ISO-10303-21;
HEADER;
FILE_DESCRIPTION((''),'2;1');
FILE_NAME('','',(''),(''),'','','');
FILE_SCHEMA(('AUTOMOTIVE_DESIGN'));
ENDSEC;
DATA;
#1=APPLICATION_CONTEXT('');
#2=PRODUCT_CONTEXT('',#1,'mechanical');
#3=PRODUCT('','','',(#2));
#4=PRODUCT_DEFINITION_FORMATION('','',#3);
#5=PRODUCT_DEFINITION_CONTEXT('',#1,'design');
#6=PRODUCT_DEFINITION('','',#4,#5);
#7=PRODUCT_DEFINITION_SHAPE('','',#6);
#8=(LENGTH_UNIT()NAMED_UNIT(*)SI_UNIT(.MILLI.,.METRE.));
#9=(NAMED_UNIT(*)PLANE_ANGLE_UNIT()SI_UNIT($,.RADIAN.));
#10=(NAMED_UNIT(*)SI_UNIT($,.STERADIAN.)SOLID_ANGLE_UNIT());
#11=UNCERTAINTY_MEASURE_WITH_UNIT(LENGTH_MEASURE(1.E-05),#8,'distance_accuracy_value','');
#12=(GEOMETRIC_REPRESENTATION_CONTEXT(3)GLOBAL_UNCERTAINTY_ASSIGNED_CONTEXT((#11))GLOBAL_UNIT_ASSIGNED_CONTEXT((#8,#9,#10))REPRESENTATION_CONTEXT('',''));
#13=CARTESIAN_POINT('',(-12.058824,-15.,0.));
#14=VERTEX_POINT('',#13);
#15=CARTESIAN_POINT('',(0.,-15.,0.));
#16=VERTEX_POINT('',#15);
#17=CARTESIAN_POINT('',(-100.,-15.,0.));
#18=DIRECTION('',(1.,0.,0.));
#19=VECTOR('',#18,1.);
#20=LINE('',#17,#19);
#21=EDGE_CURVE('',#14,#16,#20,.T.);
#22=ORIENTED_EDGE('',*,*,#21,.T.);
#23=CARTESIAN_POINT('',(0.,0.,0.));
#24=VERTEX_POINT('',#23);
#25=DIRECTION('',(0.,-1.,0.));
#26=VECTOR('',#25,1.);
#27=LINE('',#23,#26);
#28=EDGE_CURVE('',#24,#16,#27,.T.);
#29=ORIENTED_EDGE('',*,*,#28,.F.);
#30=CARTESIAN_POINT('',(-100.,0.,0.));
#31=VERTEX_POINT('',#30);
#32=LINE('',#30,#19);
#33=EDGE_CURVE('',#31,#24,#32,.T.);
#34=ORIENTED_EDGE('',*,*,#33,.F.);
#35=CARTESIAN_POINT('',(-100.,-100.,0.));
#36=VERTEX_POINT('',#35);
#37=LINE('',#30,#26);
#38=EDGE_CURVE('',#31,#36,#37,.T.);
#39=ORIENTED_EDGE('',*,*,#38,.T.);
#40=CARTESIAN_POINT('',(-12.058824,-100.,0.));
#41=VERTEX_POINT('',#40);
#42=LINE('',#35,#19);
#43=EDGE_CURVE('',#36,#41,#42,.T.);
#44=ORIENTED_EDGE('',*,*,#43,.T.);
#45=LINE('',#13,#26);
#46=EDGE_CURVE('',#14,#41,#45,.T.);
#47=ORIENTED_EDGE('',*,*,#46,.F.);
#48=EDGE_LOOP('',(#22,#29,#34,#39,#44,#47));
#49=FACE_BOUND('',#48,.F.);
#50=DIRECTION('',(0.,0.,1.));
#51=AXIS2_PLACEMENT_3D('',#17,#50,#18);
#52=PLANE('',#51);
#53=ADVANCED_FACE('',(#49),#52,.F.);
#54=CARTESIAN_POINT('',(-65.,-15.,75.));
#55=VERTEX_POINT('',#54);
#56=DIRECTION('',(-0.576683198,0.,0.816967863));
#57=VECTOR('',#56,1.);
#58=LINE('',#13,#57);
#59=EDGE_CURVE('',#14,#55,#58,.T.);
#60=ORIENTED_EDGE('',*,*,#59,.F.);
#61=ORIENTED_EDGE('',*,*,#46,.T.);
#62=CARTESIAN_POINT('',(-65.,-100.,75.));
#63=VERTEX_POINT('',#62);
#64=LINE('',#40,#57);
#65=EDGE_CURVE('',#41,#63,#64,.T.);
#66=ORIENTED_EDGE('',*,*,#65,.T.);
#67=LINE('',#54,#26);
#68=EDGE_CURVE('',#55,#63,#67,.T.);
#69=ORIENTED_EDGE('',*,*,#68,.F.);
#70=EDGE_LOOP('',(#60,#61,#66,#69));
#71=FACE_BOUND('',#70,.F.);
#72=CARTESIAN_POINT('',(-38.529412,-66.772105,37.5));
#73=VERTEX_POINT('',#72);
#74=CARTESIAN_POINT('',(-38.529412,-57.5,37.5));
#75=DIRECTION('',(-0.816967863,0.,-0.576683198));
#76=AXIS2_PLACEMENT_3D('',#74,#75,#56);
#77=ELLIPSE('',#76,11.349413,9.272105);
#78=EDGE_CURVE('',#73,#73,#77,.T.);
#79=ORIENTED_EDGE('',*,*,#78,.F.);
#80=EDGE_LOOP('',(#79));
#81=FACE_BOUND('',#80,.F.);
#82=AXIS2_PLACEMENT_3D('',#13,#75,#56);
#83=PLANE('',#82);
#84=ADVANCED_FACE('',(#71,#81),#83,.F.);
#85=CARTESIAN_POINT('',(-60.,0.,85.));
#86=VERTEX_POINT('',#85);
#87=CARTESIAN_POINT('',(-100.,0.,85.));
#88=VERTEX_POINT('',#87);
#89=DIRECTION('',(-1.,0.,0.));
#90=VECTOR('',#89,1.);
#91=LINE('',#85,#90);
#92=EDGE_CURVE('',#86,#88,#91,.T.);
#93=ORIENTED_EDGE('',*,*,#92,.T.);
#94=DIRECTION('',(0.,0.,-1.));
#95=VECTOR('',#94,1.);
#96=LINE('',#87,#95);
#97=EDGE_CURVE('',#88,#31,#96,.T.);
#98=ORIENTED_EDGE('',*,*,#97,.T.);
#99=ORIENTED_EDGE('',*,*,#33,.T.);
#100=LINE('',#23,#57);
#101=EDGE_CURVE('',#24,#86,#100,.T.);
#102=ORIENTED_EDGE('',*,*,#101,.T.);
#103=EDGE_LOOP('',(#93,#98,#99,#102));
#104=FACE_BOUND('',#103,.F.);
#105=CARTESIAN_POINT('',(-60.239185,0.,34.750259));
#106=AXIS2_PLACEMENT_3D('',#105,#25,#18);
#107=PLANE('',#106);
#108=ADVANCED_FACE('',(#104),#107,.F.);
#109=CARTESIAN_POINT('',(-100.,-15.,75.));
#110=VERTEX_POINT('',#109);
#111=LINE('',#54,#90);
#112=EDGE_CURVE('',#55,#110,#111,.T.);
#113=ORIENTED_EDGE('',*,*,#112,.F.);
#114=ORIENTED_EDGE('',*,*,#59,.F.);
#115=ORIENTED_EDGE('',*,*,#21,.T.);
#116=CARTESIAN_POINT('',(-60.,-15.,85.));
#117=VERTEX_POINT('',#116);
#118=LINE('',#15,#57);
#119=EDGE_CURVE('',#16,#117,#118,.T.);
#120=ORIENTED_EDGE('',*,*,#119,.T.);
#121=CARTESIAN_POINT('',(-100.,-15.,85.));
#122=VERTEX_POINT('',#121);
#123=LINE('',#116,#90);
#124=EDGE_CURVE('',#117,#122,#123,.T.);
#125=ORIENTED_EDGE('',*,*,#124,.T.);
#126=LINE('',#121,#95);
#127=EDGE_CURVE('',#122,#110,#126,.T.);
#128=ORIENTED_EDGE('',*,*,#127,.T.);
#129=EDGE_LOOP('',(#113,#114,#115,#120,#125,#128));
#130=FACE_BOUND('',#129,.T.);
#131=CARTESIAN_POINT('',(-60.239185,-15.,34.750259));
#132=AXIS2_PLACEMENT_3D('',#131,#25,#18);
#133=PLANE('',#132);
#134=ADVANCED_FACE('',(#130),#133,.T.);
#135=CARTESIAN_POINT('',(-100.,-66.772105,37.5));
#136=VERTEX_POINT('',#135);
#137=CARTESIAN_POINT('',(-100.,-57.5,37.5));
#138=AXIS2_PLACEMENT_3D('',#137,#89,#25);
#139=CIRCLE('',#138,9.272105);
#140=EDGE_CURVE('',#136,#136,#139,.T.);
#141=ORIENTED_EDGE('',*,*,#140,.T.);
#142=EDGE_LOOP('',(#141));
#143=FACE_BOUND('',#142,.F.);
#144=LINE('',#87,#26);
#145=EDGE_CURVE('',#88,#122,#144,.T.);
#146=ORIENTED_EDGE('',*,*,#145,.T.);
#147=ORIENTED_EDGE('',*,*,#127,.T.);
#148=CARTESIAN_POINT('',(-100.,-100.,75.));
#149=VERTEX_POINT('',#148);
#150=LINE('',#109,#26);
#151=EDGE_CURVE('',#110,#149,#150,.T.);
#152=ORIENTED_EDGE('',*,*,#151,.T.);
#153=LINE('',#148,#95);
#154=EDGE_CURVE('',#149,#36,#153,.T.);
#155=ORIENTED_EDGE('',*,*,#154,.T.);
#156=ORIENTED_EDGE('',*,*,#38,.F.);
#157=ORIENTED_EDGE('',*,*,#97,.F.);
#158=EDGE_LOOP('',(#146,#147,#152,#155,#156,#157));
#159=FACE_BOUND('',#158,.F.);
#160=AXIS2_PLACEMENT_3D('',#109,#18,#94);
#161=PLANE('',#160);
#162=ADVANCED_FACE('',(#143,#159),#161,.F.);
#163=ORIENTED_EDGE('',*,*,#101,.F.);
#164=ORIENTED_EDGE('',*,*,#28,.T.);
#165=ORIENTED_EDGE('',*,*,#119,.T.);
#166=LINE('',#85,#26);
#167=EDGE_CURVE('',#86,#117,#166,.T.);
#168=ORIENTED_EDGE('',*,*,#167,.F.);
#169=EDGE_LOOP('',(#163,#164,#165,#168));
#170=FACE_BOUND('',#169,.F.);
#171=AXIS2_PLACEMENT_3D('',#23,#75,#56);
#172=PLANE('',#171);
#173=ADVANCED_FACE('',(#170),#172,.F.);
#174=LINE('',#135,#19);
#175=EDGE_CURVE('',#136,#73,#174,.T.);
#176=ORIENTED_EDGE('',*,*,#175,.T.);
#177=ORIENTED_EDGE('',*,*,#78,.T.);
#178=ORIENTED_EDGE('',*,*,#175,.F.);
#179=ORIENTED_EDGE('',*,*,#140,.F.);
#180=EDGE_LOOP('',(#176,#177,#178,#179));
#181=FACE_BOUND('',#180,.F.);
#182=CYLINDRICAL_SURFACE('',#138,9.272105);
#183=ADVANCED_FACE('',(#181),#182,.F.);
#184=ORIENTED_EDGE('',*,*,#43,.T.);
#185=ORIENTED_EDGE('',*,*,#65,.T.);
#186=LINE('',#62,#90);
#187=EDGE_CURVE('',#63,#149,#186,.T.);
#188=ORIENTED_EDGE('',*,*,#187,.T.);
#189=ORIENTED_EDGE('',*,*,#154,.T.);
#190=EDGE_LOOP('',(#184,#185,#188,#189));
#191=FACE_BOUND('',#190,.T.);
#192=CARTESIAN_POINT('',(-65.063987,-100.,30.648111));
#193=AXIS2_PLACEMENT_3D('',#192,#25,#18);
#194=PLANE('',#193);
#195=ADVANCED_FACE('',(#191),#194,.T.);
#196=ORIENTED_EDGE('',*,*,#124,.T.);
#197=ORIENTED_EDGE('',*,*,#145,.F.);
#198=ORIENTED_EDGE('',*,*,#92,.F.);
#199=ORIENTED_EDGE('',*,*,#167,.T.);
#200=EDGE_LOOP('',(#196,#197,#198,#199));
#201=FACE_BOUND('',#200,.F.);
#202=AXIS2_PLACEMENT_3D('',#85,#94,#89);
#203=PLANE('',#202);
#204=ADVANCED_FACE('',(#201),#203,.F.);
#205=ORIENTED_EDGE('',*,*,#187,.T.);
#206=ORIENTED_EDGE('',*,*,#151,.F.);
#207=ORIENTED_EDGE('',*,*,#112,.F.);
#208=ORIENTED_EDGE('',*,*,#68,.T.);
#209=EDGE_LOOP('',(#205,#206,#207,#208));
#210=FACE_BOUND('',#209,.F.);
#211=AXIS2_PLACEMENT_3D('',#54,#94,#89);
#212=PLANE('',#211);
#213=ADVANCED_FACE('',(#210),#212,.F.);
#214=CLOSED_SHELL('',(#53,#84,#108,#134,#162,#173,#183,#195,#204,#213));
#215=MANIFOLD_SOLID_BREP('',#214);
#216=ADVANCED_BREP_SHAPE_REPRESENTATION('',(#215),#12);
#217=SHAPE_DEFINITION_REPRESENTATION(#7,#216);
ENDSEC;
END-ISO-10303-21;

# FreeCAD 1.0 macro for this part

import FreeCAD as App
import Part
import Sketcher
from FreeCAD import Vector

doc = App.newDocument("Part")
body = doc.addObject("PartDesign::Body", "Body")

sketch1 = doc.addObject("Sketcher::SketchObject", "Sketch")
body.addObject(sketch1)
sketch1.AttachmentSupport = (doc.XZ_Plane, [""])
sketch1.MapMode = "FlatFace"
sketch1.addGeometry(Part.LineSegment(Vector(-100, 0, 0), Vector(0, 0, 0)), False)
sketch1.addGeometry(Part.LineSegment(Vector(0, 0, 0), Vector(-60, 85, 0)), False)
sketch1.addGeometry(Part.LineSegment(Vector(-60, 85, 0), Vector(-100, 85, 0)), False)
sketch1.addGeometry(Part.LineSegment(Vector(-100, 85, 0), Vector(-100, 0, 0)), False)
sketch1.addConstraint(Sketcher.Constraint("Coincident", 0, 2, 1, 1))
sketch1.addConstraint(Sketcher.Constraint("Coincident", 1, 2, 2, 1))
sketch1.addConstraint(Sketcher.Constraint("Coincident", 2, 2, 3, 1))
sketch1.addConstraint(Sketcher.Constraint("Coincident", 3, 2, 0, 1))
sketch1.addConstraint(Sketcher.Constraint("Horizontal", 0))
sketch1.addConstraint(Sketcher.Constraint("Horizontal", 2))
sketch1.addConstraint(Sketcher.Constraint("Vertical", 3))
sketch1.addConstraint(Sketcher.Constraint("Coincident", 0, 2, -1, 1))
sketch1.addConstraint(Sketcher.Constraint("DistanceX", 0, 1, 0, 2, 100.0))
sketch1.addConstraint(Sketcher.Constraint("DistanceX", 2, 2, 2, 1, 40.0))
sketch1.addConstraint(Sketcher.Constraint("DistanceY", 3, 2, 3, 1, 85.0))
pad1 = doc.addObject("PartDesign::Pad", "Pad")
body.addObject(pad1)
pad1.Profile = sketch1
pad1.Length = 15

sketch2 = doc.addObject("Sketcher::SketchObject", "Sketch001")
body.addObject(sketch2)
sketch2.AttachmentSupport = (doc.XZ_Plane, [""])
sketch2.MapMode = "FlatFace"
sketch2.AttachmentOffset = App.Placement(Vector(0, 0, 15), App.Rotation())
sketch2.addGeometry(Part.LineSegment(Vector(-65, 75, 0), Vector(-100, 75, 0)), False)
sketch2.addGeometry(Part.LineSegment(Vector(-100, 75, 0), Vector(-100, 0, 0)), False)
sketch2.addGeometry(Part.LineSegment(Vector(-100, 0, 0), Vector(-12, 0, 0)), False)
sketch2.addGeometry(Part.LineSegment(Vector(-12, 0, 0), Vector(-65, 75, 0)), False)
sketch2.addConstraint(Sketcher.Constraint("Coincident", 0, 2, 1, 1))
sketch2.addConstraint(Sketcher.Constraint("Coincident", 1, 2, 2, 1))
sketch2.addConstraint(Sketcher.Constraint("Coincident", 2, 2, 3, 1))
sketch2.addConstraint(Sketcher.Constraint("Coincident", 3, 2, 0, 1))
sketch2.addConstraint(Sketcher.Constraint("Horizontal", 0))
sketch2.addConstraint(Sketcher.Constraint("Vertical", 1))
sketch2.addConstraint(Sketcher.Constraint("Horizontal", 2))
sketch2.addConstraint(Sketcher.Constraint("PointOnObject", 1, 2, -1))
sketch2.addConstraint(Sketcher.Constraint("DistanceX", 0, 2, 0, 1, 35.0))
sketch2.addConstraint(Sketcher.Constraint("DistanceY", 1, 2, 1, 1, 75.0))
sketch2.addConstraint(Sketcher.Constraint("DistanceX", 0, 2, -1, 1, 100.0))
sketch2.addConstraint(Sketcher.Constraint("DistanceX", 2, 1, 2, 2, 87.941176))
pad2 = doc.addObject("PartDesign::Pad", "Pad001")
body.addObject(pad2)
pad2.Profile = sketch2
pad2.Length = 85

sketch3 = doc.addObject("Sketcher::SketchObject", "Sketch002")
body.addObject(sketch3)
sketch3.AttachmentSupport = (doc.YZ_Plane, [""])
sketch3.MapMode = "FlatFace"
sketch3.AttachmentOffset = App.Placement(Vector(0, 0, -100), App.Rotation())
sketch3.addGeometry(Part.Circle(Vector(-58, 38, 0), Vector(0, 0, 1), 9), False)
sketch3.addConstraint(Sketcher.Constraint("DistanceX", 0, 3, -1, 1, 57.5))
sketch3.addConstraint(Sketcher.Constraint("DistanceY", -1, 1, 0, 3, 37.5))
sketch3.addConstraint(Sketcher.Constraint("Diameter", 0, 18.544211))
pocket1 = doc.addObject("PartDesign::Pocket", "Pocket")
body.addObject(pocket1)
pocket1.Profile = sketch3
pocket1.Type = "ThroughAll"
pocket1.Reversed = True

doc.recompute()
